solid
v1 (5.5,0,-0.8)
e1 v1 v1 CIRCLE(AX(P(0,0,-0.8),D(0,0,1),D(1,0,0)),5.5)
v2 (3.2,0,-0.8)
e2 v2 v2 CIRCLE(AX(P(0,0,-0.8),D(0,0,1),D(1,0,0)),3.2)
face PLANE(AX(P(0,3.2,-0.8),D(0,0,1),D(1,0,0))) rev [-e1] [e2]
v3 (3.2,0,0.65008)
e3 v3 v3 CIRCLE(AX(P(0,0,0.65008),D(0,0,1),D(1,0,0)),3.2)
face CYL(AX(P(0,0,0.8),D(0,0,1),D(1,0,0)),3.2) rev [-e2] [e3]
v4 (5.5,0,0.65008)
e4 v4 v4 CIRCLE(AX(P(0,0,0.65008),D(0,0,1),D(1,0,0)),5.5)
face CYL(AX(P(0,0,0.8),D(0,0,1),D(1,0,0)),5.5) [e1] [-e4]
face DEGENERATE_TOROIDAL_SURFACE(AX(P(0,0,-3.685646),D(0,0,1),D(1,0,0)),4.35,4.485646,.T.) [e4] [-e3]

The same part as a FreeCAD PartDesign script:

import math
import FreeCAD as App
import Part
import Sketcher

V = App.Vector
Q = App.Units.Quantity

doc = App.newDocument("Part")
body = doc.addObject("PartDesign::Body", "Body")

sketch1 = doc.addObject("Sketcher::SketchObject", "Sketch")
body.addObject(sketch1)
sketch1.AttachmentSupport = (doc.YZ_Plane, [""])
sketch1.MapMode = "FlatFace"
sketch1.addGeometry(Part.LineSegment(V(5.5, -0.8, 0), V(5.5, 0.7, 0)), False)
sketch1.addGeometry(Part.ArcOfCircle(Part.Circle(V(4.3, -3.7, 0), V(0, 0, 1), 4.5), math.radians(75), math.radians(105)), False)
sketch1.addGeometry(Part.LineSegment(V(3.2, 0.7, 0), V(3.2, -0.8, 0)), False)
sketch1.addGeometry(Part.LineSegment(V(3.2, -0.8, 0), V(5.5, -0.8, 0)), False)
sketch1.addConstraint(Sketcher.Constraint("Coincident", 0, 2, 1, 1))
sketch1.addConstraint(Sketcher.Constraint("Coincident", 1, 2, 2, 1))
sketch1.addConstraint(Sketcher.Constraint("Coincident", 2, 2, 3, 1))
sketch1.addConstraint(Sketcher.Constraint("Coincident", 3, 2, 0, 1))
sketch1.addConstraint(Sketcher.Constraint("Vertical", 0))
sketch1.addConstraint(Sketcher.Constraint("Vertical", 2))
sketch1.addConstraint(Sketcher.Constraint("Horizontal", 3))
sketch1.addConstraint(Sketcher.Constraint("Horizontal", 0, 2, 1, 2))
sketch1.addConstraint(Sketcher.Constraint("DistanceX", 3, 1, 3, 2, Q("2.3 mm")))
sketch1.addConstraint(Sketcher.Constraint("DistanceX", -1, 1, 0, 2, Q("5.5 mm")))
sketch1.addConstraint(Sketcher.Constraint("DistanceY", 2, 2, -1, 1, Q("0.8 mm")))
sketch1.addConstraint(Sketcher.Constraint("Radius", 1, Q("4.485646 mm")))
sketch1.addConstraint(Sketcher.Constraint("DistanceY", 0, 1, 0, 2, Q("1.45008 mm")))
revolution = doc.addObject("PartDesign::Revolution", "Revolution")
body.addObject(revolution)
revolution.Profile = sketch1
revolution.ReferenceAxis = (sketch1, ["V_Axis"])
revolution.Angle = 360

doc.recompute()
